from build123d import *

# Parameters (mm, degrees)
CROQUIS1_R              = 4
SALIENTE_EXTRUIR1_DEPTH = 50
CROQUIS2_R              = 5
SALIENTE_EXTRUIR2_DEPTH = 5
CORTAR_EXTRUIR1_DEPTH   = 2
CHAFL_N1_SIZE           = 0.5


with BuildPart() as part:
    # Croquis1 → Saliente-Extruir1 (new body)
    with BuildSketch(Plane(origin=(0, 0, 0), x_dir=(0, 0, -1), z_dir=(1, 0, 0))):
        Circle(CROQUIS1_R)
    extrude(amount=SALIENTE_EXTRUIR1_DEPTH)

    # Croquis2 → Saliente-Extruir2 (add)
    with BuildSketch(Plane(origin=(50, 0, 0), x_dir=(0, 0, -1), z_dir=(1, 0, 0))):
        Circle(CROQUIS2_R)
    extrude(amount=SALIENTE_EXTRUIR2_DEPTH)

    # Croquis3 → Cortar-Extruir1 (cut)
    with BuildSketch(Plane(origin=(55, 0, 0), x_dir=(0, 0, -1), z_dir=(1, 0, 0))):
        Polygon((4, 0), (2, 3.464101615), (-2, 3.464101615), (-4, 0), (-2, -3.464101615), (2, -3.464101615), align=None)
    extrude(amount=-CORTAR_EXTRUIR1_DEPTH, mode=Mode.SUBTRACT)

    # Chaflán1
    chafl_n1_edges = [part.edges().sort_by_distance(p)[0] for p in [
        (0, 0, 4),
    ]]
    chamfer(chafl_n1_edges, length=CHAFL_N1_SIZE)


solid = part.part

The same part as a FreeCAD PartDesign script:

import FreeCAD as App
import Part
import Sketcher

V = App.Vector
Q = App.Units.Quantity


def edges_at(feature, points):
    """Names of the edges that pass closest to the given points."""
    edges = feature.Shape.Edges
    near = lambda p: min(range(len(edges)), key=lambda i: edges[i].distToShape(Part.Vertex(*p))[0])
    return sorted({f"Edge{near(p) + 1}" for p in points})


def add_polygon(sketch, points):
    """Adds a closed chain of lines whose ends are joined by coincident constraints."""
    first, n = sketch.GeometryCount, len(points)
    for a, b in zip(points, points[1:] + points[:1]):
        sketch.addGeometry(Part.LineSegment(App.Vector(*a, 0), App.Vector(*b, 0)), False)
    for i in range(n):
        sketch.addConstraint(Sketcher.Constraint("Coincident", first + i, 2, first + (i + 1) % n, 1))

doc = App.newDocument("Part")
body = doc.addObject("PartDesign::Body", "Body")

# Sketch on YZ plane
sketch1 = doc.addObject("Sketcher::SketchObject", "Sketch")
body.addObject(sketch1)
sketch1.AttachmentSupport = (doc.YZ_Plane, [""])
sketch1.MapMode = "FlatFace"
sketch1.addGeometry(Part.Circle(V(0, 0, 0), V(0, 0, 1), 4), False)
sketch1.addConstraint(Sketcher.Constraint("Coincident", 0, 3, -1, 1))
sketch1.addConstraint(Sketcher.Constraint("Diameter", 0, Q("8 mm")))
pad1 = doc.addObject("PartDesign::Pad", "Pad")
body.addObject(pad1)
pad1.Profile = sketch1
pad1.Length = 50

# Sketch on YZ plane
sketch2 = doc.addObject("Sketcher::SketchObject", "Sketch001")
body.addObject(sketch2)
sketch2.AttachmentSupport = (doc.YZ_Plane, [""])
sketch2.MapMode = "FlatFace"
sketch2.AttachmentOffset = App.Placement(V(0, 0, 50), App.Rotation())
sketch2.addGeometry(Part.Circle(V(0, 0, 0), V(0, 0, 1), 5), False)
sketch2.addConstraint(Sketcher.Constraint("Coincident", 0, 3, -1, 1))
sketch2.addConstraint(Sketcher.Constraint("Diameter", 0, Q("10 mm")))
pad2 = doc.addObject("PartDesign::Pad", "Pad001")
body.addObject(pad2)
pad2.Profile = sketch2
pad2.Length = 5

# Sketch on YZ plane
sketch3 = doc.addObject("Sketcher::SketchObject", "Sketch002")
body.addObject(sketch3)
sketch3.AttachmentSupport = (doc.YZ_Plane, [""])
sketch3.MapMode = "FlatFace"
sketch3.AttachmentOffset = App.Placement(V(0, 0, 55), App.Rotation())
add_polygon(sketch3, [(0, -4), (3.464102, -2), (3.464102, 2), (0, 4), (-3.464102, 2), (-3.464102, -2)])  # lines 0-5
sketch3.addConstraint(Sketcher.Constraint("Vertical", 1))
sketch3.addConstraint(Sketcher.Constraint("Vertical", 4))
sketch3.addConstraint(Sketcher.Constraint("Symmetric", 0, 2, 3, 2, -1, 1))
sketch3.addConstraint(Sketcher.Constraint("Symmetric", 2, 2, 5, 2, -1, 1))
sketch3.addConstraint(Sketcher.Constraint("PointOnObject", 2, 2, -2))
sketch3.addConstraint(Sketcher.Constraint("Parallel", 2, 5))
sketch3.addConstraint(Sketcher.Constraint("Horizontal", 1, 2, 3, 2))
sketch3.addConstraint(Sketcher.Constraint("DistanceY", 1, 1, 1, 2, Q("4 mm")))
sketch3.addConstraint(Sketcher.Constraint("Angle", 0, Q("30 deg")))
sketch3.addConstraint(Sketcher.Constraint("Distance", 0, Q("4 mm")))
pocket1 = doc.addObject("PartDesign::Pocket", "Pocket")
body.addObject(pocket1)
pocket1.Profile = sketch3
pocket1.Length = 2
doc.recompute()

chamfer = doc.addObject("PartDesign::Chamfer", "Chamfer")
body.addObject(chamfer)
chamfer.Base = (pocket1, edges_at(pocket1, [(0, 0, 4)]))
chamfer.Size = 0.5

doc.recompute()
